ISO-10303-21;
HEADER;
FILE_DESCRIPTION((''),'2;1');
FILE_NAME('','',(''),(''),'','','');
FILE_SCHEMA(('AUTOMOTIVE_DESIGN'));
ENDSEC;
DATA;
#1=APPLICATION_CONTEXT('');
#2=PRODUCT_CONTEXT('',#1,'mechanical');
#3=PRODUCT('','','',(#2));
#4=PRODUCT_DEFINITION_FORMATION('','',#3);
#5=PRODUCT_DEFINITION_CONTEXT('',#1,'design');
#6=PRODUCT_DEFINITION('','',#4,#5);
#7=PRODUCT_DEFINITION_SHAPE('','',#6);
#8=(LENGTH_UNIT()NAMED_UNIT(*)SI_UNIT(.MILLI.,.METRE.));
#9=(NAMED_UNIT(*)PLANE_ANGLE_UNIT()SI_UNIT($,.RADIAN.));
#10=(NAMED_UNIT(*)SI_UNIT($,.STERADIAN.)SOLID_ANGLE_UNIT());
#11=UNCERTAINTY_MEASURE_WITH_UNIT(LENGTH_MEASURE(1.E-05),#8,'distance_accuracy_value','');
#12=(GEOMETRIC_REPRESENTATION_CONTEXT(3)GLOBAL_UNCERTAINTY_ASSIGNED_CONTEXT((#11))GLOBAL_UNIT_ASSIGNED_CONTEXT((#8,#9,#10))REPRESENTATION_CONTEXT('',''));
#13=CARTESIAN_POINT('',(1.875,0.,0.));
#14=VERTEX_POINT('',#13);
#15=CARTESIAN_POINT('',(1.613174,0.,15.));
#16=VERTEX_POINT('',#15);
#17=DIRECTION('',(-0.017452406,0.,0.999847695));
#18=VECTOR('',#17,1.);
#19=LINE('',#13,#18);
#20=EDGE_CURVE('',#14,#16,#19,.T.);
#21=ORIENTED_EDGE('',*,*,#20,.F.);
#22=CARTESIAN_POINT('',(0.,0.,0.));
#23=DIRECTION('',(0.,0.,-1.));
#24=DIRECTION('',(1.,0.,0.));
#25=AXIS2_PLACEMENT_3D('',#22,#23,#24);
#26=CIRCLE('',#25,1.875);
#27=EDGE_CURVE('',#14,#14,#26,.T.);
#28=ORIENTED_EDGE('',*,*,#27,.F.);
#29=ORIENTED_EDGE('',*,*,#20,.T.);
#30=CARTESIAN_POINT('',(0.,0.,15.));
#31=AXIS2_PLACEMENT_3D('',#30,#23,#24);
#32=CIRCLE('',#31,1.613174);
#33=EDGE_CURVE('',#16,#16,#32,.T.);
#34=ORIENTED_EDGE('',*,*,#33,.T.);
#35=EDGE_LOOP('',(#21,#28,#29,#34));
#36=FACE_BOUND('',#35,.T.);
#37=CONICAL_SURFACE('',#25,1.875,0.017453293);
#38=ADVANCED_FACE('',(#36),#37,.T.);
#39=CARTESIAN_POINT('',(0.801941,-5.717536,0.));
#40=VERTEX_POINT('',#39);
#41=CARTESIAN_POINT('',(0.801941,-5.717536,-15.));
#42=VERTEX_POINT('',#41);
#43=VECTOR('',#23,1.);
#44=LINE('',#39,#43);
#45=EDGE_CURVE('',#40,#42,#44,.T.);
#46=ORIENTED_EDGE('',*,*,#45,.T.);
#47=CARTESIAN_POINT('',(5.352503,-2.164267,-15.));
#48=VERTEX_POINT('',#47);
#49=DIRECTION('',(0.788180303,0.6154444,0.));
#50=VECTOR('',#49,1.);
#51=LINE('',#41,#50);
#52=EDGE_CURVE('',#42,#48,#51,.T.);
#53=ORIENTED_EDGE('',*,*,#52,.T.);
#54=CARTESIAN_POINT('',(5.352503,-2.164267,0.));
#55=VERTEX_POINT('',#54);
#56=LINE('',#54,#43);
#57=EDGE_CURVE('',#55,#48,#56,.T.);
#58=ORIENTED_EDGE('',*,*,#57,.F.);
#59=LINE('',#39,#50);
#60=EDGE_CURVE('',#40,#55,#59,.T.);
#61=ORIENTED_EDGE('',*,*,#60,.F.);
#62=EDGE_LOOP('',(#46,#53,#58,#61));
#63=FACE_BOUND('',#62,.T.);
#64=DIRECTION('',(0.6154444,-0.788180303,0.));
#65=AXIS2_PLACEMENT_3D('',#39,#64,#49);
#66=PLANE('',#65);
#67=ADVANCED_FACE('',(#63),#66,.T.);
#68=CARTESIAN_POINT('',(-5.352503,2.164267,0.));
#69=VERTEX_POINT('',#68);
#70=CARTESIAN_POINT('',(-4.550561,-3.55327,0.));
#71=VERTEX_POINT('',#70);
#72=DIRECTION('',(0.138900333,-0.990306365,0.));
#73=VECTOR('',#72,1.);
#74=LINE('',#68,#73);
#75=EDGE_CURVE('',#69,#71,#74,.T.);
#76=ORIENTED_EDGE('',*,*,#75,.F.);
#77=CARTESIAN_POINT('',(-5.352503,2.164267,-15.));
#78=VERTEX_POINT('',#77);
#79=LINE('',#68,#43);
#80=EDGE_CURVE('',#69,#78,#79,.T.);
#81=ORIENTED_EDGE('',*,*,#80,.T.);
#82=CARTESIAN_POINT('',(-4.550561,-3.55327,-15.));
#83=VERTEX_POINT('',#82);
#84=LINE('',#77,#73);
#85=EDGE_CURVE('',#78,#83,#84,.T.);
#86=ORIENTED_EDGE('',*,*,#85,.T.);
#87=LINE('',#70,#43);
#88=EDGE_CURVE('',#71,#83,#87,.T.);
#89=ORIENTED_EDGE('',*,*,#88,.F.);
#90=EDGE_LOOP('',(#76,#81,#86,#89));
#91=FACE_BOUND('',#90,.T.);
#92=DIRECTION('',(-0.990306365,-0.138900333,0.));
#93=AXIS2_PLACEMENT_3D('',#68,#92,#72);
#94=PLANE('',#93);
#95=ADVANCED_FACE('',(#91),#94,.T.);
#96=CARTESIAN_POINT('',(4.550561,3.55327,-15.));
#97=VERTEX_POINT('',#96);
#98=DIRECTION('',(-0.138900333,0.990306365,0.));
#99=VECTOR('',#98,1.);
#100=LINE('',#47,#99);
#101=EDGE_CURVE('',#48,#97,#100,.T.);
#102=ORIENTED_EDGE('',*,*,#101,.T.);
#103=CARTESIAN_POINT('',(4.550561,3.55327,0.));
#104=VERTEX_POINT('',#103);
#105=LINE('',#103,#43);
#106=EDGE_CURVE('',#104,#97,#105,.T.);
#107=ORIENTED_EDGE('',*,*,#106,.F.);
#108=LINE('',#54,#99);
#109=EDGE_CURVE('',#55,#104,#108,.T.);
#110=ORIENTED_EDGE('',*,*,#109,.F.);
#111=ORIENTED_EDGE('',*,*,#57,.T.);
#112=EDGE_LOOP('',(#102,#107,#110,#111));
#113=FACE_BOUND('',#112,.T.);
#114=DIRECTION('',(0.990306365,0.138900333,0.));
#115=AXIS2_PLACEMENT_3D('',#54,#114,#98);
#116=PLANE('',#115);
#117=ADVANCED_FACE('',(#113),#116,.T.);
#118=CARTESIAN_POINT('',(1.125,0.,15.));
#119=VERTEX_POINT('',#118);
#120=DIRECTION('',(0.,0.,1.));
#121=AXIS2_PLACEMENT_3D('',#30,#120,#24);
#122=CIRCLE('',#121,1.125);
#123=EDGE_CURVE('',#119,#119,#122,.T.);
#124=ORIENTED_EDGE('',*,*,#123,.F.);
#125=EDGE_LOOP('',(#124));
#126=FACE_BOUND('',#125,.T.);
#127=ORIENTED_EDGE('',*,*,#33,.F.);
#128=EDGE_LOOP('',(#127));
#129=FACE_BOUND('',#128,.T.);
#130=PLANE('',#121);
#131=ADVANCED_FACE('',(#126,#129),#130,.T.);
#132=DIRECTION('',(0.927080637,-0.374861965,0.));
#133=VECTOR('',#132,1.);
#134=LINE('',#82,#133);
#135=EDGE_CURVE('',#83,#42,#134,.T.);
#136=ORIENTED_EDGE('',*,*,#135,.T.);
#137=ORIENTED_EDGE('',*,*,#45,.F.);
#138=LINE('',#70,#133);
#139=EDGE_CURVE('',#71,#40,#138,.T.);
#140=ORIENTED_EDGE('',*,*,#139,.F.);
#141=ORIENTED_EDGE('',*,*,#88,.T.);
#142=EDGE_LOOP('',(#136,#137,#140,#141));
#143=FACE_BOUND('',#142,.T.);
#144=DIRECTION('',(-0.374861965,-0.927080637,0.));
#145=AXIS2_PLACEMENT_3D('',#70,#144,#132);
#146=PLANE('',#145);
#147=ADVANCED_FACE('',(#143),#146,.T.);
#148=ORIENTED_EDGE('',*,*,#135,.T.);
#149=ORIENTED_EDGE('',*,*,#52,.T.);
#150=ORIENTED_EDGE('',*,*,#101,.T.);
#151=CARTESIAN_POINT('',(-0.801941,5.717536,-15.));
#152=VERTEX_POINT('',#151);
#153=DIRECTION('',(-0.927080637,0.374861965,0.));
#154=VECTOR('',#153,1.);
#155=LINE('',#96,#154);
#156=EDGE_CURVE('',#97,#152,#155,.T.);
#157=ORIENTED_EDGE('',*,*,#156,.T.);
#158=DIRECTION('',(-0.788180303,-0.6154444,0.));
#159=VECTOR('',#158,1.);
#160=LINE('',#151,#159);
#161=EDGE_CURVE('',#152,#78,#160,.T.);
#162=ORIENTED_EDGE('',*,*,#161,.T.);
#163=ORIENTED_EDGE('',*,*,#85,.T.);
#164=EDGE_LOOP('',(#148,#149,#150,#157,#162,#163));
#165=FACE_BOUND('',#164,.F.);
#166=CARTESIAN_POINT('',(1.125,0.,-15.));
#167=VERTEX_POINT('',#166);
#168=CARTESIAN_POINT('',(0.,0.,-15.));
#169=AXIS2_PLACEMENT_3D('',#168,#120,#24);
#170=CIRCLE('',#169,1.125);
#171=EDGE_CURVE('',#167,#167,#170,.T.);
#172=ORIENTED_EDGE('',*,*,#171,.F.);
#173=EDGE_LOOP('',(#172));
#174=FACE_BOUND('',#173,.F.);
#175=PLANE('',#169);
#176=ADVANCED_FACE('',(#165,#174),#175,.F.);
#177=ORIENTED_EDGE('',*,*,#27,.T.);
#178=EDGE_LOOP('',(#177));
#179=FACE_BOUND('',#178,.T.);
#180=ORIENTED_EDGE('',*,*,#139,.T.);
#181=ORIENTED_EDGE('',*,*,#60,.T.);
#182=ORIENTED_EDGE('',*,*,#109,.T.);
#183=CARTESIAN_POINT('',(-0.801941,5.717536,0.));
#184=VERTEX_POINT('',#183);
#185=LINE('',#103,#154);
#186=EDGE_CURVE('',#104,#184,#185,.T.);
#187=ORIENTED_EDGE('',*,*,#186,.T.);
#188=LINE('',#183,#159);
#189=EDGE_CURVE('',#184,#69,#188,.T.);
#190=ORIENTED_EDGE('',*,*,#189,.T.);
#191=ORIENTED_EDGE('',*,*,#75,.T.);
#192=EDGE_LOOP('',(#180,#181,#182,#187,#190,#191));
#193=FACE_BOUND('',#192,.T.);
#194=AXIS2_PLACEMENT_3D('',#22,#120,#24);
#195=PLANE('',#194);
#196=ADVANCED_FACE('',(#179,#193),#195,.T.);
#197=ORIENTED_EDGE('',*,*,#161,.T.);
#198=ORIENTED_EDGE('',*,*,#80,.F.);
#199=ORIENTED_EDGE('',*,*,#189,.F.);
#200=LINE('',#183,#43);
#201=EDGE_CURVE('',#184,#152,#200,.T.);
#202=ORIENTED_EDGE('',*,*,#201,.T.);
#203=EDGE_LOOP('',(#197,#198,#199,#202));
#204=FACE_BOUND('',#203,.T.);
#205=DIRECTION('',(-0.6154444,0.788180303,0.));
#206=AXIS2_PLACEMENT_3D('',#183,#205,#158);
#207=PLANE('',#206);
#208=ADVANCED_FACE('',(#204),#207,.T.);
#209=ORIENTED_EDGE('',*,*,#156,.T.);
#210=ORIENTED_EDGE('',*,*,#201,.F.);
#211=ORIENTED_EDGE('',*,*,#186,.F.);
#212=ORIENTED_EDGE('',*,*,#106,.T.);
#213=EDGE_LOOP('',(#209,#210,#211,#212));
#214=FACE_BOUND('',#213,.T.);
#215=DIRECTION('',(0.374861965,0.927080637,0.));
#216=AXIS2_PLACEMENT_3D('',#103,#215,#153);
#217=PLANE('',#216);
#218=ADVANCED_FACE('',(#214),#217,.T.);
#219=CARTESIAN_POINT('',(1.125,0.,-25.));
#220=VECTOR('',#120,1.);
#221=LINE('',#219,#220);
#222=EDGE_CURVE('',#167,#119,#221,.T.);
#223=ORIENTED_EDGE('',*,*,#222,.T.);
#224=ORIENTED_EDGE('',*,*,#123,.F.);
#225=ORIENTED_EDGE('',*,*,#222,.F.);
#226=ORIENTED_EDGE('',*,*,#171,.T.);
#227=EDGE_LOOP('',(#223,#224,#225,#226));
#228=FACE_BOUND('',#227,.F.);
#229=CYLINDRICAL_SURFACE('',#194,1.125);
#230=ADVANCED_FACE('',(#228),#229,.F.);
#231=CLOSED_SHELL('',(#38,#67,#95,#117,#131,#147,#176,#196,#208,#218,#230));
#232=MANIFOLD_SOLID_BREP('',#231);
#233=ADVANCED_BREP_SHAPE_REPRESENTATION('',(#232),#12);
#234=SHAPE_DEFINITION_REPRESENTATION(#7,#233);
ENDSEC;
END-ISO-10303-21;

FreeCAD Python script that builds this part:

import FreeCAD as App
import Part
import Sketcher

V = App.Vector
Q = App.Units.Quantity

doc = App.newDocument("Part")
params = doc.addObject("Spreadsheet::Sheet", "Params")
for row, (alias, value) in enumerate([
    ("sketch1_diameter", "3.75 mm"),
    ("pad1_length", "15 mm"),
    ("pad1_taper", "-1 deg"),
    ("pad2_length", "15 mm"),
    ("sketch3_diameter", "2.25 mm"),
    ("pocket1_length", "50 mm"),
], start=1):
    params.set(f"A{row}", alias)
    params.set(f"B{row}", "=" + value)
    params.setAlias(f"B{row}", alias)

body = doc.addObject("PartDesign::Body", "Body")

sketch1 = body.newObject("Sketcher::SketchObject", "Sketch")
sketch1.AttachmentSupport = (doc.getObject("XY_Plane"), [""])
sketch1.MapMode = "FlatFace"
sketch1.addGeometry(Part.Circle(V(0, 0, 0), V(0, 0, 1), 1.9), False)
sketch1.addConstraint(Sketcher.Constraint("Coincident", 0, 3, -1, 1))
sketch1.addConstraint(Sketcher.Constraint("Diameter", 0, Q("3.75 mm")))
sketch1.setExpression("Constraints[1]", "Params.sketch1_diameter")
pad1 = body.newObject("PartDesign::Pad", "Pad")
pad1.Profile = sketch1
pad1.setExpression("Length", "Params.pad1_length")
pad1.setExpression("TaperAngle", "Params.pad1_taper")

sketch2 = body.newObject("Sketcher::SketchObject", "Sketch001")
sketch2.AttachmentSupport = (doc.getObject("XY_Plane"), [""])
sketch2.MapMode = "FlatFace"
sketch2.addGeometry(Part.LineSegment(V(4.550561, 3.55327, 0), V(-0.801941, 5.717536, 0)), False)
sketch2.addGeometry(Part.LineSegment(V(-0.801941, 5.717536, 0), V(-5.352503, 2.164267, 0)), False)
sketch2.addGeometry(Part.LineSegment(V(-5.352503, 2.164267, 0), V(-4.550561, -3.55327, 0)), False)
sketch2.addGeometry(Part.LineSegment(V(-4.550561, -3.55327, 0), V(0.801941, -5.717536, 0)), False)
sketch2.addGeometry(Part.LineSegment(V(0.801941, -5.717536, 0), V(5.352503, -2.164267, 0)), False)
sketch2.addGeometry(Part.LineSegment(V(5.352503, -2.164267, 0), V(4.550561, 3.55327, 0)), False)
sketch2.addConstraint(Sketcher.Constraint("Coincident", 0, 2, 1, 1))
sketch2.addConstraint(Sketcher.Constraint("Coincident", 1, 2, 2, 1))
sketch2.addConstraint(Sketcher.Constraint("Coincident", 2, 2, 3, 1))
sketch2.addConstraint(Sketcher.Constraint("Coincident", 3, 2, 4, 1))
sketch2.addConstraint(Sketcher.Constraint("Coincident", 4, 2, 5, 1))
sketch2.addConstraint(Sketcher.Constraint("Coincident", 5, 2, 0, 1))
sketch2.addConstraint(Sketcher.Constraint("DistanceX", 0, 2, -1, 1, Q("0.801941 mm")))
sketch2.addConstraint(Sketcher.Constraint("DistanceX", 2, 2, -1, 1, Q("4.550561 mm")))
sketch2.addConstraint(Sketcher.Constraint("DistanceY", 2, 2, -1, 1, Q("3.55327 mm")))
sketch2.addConstraint(Sketcher.Constraint("DistanceX", -1, 1, 3, 2, Q("0.801941 mm")))
sketch2.addConstraint(Sketcher.Constraint("DistanceX", -1, 1, 5, 2, Q("4.550561 mm")))
sketch2.addConstraint(Sketcher.Constraint("DistanceY", -1, 1, 5, 2, Q("3.55327 mm")))
sketch2.addConstraint(Sketcher.Constraint("DistanceX", 1, 2, 0, 2, Q("4.550561 mm")))
sketch2.addConstraint(Sketcher.Constraint("DistanceY", 1, 2, 0, 2, Q("3.55327 mm")))
sketch2.addConstraint(Sketcher.Constraint("DistanceX", 3, 2, 4, 2, Q("4.550561 mm")))
sketch2.addConstraint(Sketcher.Constraint("DistanceY", 3, 2, 4, 2, Q("3.55327 mm")))
sketch2.addConstraint(Sketcher.Constraint("Distance", 0, Q("5.773503 mm")))
sketch2.addConstraint(Sketcher.Constraint("Distance", 3, Q("5.773503 mm")))
pad2 = body.newObject("PartDesign::Pad", "Pad001")
pad2.Profile = sketch2
pad2.setExpression("Length", "Params.pad2_length")
pad2.Reversed = True

sketch3 = body.newObject("Sketcher::SketchObject", "Sketch002")
sketch3.AttachmentSupport = (doc.getObject("XY_Plane"), [""])
sketch3.MapMode = "FlatFace"
sketch3.addGeometry(Part.Circle(V(0, 0, 0), V(0, 0, 1), 1.1), False)
sketch3.addConstraint(Sketcher.Constraint("Coincident", 0, 3, -1, 1))
sketch3.addConstraint(Sketcher.Constraint("Diameter", 0, Q("2.25 mm")))
sketch3.setExpression("Constraints[1]", "Params.sketch3_diameter")
pocket1 = body.newObject("PartDesign::Pocket", "Pocket")
pocket1.Profile = sketch3
pocket1.setExpression("Length", "Params.pocket1_length")
pocket1.Midplane = True

doc.recompute()
